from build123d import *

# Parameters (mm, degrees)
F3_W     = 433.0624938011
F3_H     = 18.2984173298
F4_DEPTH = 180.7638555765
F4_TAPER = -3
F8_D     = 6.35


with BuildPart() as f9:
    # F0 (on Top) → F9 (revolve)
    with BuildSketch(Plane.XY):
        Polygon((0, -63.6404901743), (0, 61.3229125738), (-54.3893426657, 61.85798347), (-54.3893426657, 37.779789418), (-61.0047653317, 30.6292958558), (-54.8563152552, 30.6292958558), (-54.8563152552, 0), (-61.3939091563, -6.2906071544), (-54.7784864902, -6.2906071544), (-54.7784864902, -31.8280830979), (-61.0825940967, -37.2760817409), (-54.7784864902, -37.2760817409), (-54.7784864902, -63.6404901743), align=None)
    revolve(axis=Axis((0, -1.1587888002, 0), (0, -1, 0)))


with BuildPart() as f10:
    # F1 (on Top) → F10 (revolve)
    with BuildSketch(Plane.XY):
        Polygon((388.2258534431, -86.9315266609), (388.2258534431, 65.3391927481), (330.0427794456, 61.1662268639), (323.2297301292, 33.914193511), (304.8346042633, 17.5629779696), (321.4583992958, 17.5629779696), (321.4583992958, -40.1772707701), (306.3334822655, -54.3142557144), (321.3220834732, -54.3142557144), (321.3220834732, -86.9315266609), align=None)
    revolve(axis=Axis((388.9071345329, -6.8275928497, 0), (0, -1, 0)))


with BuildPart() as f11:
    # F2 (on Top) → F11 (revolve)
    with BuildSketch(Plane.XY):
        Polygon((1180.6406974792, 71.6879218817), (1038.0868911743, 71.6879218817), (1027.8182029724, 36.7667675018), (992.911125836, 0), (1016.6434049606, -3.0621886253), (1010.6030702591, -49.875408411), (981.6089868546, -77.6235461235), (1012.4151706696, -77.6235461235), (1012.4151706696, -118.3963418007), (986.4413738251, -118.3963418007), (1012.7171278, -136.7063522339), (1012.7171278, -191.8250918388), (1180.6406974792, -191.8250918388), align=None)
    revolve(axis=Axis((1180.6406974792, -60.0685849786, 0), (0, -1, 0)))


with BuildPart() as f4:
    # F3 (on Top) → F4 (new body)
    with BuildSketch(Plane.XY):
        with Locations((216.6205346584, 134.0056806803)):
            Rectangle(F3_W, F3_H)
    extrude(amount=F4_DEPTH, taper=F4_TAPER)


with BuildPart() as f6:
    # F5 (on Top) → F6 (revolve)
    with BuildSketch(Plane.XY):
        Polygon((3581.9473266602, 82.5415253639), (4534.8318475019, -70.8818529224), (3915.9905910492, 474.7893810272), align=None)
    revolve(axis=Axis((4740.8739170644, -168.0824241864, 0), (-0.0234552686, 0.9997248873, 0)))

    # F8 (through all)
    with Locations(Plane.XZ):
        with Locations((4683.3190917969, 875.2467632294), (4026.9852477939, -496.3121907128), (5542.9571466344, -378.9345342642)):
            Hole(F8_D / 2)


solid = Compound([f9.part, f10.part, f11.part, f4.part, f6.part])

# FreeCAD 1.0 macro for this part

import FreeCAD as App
import Part
import Sketcher
from FreeCAD import Vector
Q = App.Units.Quantity

doc = App.newDocument("Part")
body = doc.addObject("PartDesign::Body", "Body")

# Sketch on XY plane
sketch1 = body.newObject("Sketcher::SketchObject", "Sketch")
sketch1.AttachmentSupport = (doc.getObject("XY_Plane"), [""])
sketch1.MapMode = "FlatFace"
sketch1.addGeometry([
    Part.LineSegment(Vector(0, -64, 0), Vector(0, 61, 0)),  # 0
    Part.LineSegment(Vector(0, 61, 0), Vector(-54, 62, 0)),  # 1
    Part.LineSegment(Vector(-54, 62, 0), Vector(-54, 38, 0)),  # 2
    Part.LineSegment(Vector(-54, 38, 0), Vector(-61, 31, 0)),  # 3
    Part.LineSegment(Vector(-61, 31, 0), Vector(-55, 31, 0)),  # 4
    Part.LineSegment(Vector(-55, 31, 0), Vector(-55, 0, 0)),  # 5
    Part.LineSegment(Vector(-55, 0, 0), Vector(-61, -6, 0)),  # 6
    Part.LineSegment(Vector(-61, -6, 0), Vector(-55, -6, 0)),  # 7
    Part.LineSegment(Vector(-55, -6, 0), Vector(-55, -32, 0)),  # 8
    Part.LineSegment(Vector(-55, -32, 0), Vector(-61, -37, 0)),  # 9
    Part.LineSegment(Vector(-61, -37, 0), Vector(-55, -37, 0)),  # 10
    Part.LineSegment(Vector(-55, -37, 0), Vector(-55, -64, 0)),  # 11
    Part.LineSegment(Vector(-55, -64, 0), Vector(0, -64, 0)),  # 12
], False)
sketch1.addConstraint([
    Sketcher.Constraint("Coincident", 0, 2, 1, 1),
    Sketcher.Constraint("Coincident", 1, 2, 2, 1),
    Sketcher.Constraint("Coincident", 2, 2, 3, 1),
    Sketcher.Constraint("Coincident", 3, 2, 4, 1),
    Sketcher.Constraint("Coincident", 4, 2, 5, 1),
    Sketcher.Constraint("Coincident", 5, 2, 6, 1),
    Sketcher.Constraint("Coincident", 6, 2, 7, 1),
    Sketcher.Constraint("Coincident", 7, 2, 8, 1),
    Sketcher.Constraint("Coincident", 8, 2, 9, 1),
    Sketcher.Constraint("Coincident", 9, 2, 10, 1),
    Sketcher.Constraint("Coincident", 10, 2, 11, 1),
    Sketcher.Constraint("Coincident", 11, 2, 12, 1),
    Sketcher.Constraint("Coincident", 12, 2, 0, 1),
    Sketcher.Constraint("Vertical", 0),
    Sketcher.Constraint("Vertical", 2),
    Sketcher.Constraint("Horizontal", 4),
    Sketcher.Constraint("Vertical", 5),
    Sketcher.Constraint("Horizontal", 7),
    Sketcher.Constraint("Vertical", 8),
    Sketcher.Constraint("Horizontal", 10),
    Sketcher.Constraint("Vertical", 11),
    Sketcher.Constraint("Horizontal", 12),
    Sketcher.Constraint("PointOnObject", 0, 2, -2),
    Sketcher.Constraint("PointOnObject", 5, 2, -1),
    Sketcher.Constraint("Vertical", 8, 2, 10, 2),
    Sketcher.Constraint("DistanceX", 4, 1, 4, 2, 6.14845),
    Sketcher.Constraint("DistanceY", 11, 2, 11, 1, 26.364408),
    Sketcher.Constraint("DistanceY", 9, 2, 8, 2, 5.447999),
    Sketcher.Constraint("Distance", 6, 9.072589),
    Sketcher.Constraint("DistanceX", 7, 1, 7, 2, 6.615423),
    Sketcher.Constraint("DistanceX", 10, 1, 10, 2, 6.304108),
    Sketcher.Constraint("DistanceX", 12, 1, 12, 2, 54.778486),
    Sketcher.Constraint("DistanceY", 0, 1, 0, 2, 124.963403),
    Sketcher.Constraint("DistanceY", 2, 2, 2, 1, 24.078194),
    Sketcher.Constraint("DistanceY", 5, 2, 5, 1, 30.629296),
    Sketcher.Constraint("DistanceY", 8, 2, 8, 1, 25.537476),
    Sketcher.Constraint("DistanceY", -1, 1, 2, 2, 37.779789),
    Sketcher.Constraint("DistanceY", 9, 2, -1, 1, 37.276082),
    Sketcher.Constraint("Distance", 1, 54.391975),
])
revolution = body.newObject("PartDesign::Revolution", "Revolution")
revolution.Profile = sketch1
revolution.ReferenceAxis = (sketch1, ["V_Axis"])
revolution.Angle = 360
body2 = doc.addObject("PartDesign::Body", "Body001")

# Sketch on XY plane
sketch2 = body2.newObject("Sketcher::SketchObject", "Sketch001")
sketch2.AttachmentSupport = (doc.getObject("XY_Plane001"), [""])
sketch2.MapMode = "FlatFace"
sketch2.addGeometry([
    Part.LineSegment(Vector(388, -87, 0), Vector(388, 65, 0)),  # 0
    Part.LineSegment(Vector(388, 65, 0), Vector(330, 61, 0)),  # 1
    Part.LineSegment(Vector(330, 61, 0), Vector(323, 34, 0)),  # 2
    Part.LineSegment(Vector(323, 34, 0), Vector(305, 18, 0)),  # 3
    Part.LineSegment(Vector(305, 18, 0), Vector(321, 18, 0)),  # 4
    Part.LineSegment(Vector(321, 18, 0), Vector(321, -40, 0)),  # 5
    Part.LineSegment(Vector(321, -40, 0), Vector(306, -54, 0)),  # 6
    Part.LineSegment(Vector(306, -54, 0), Vector(321, -54, 0)),  # 7
    Part.LineSegment(Vector(321, -54, 0), Vector(321, -87, 0)),  # 8
    Part.LineSegment(Vector(321, -87, 0), Vector(388, -87, 0)),  # 9
], False)
sketch2.addGeometry(Part.LineSegment(Vector(389, 65, 0), Vector(389, -87, 0)), True)  # axis
sketch2.addConstraint([
    Sketcher.Constraint("Coincident", 0, 2, 1, 1),
    Sketcher.Constraint("Coincident", 1, 2, 2, 1),
    Sketcher.Constraint("Coincident", 2, 2, 3, 1),
    Sketcher.Constraint("Coincident", 3, 2, 4, 1),
    Sketcher.Constraint("Coincident", 4, 2, 5, 1),
    Sketcher.Constraint("Coincident", 5, 2, 6, 1),
    Sketcher.Constraint("Coincident", 6, 2, 7, 1),
    Sketcher.Constraint("Coincident", 7, 2, 8, 1),
    Sketcher.Constraint("Coincident", 8, 2, 9, 1),
    Sketcher.Constraint("Coincident", 9, 2, 0, 1),
    Sketcher.Constraint("Vertical", 0),
    Sketcher.Constraint("Horizontal", 4),
    Sketcher.Constraint("Vertical", 5),
    Sketcher.Constraint("Horizontal", 7),
    Sketcher.Constraint("Vertical", 8),
    Sketcher.Constraint("Horizontal", 9),
    Sketcher.Constraint("Vertical", 10),
    Sketcher.Constraint("Horizontal", 0, 2, 10, 1),
    Sketcher.Constraint("Horizontal", 9, 2, 10, 2),
    Sketcher.Constraint("DistanceX", 7, 1, 7, 2, 14.988601),
    Sketcher.Constraint("DistanceX", 9, 1, 9, 2, 66.90377),
    Sketcher.Constraint("DistanceY", 0, 1, 0, 2, 152.270719),
    Sketcher.Constraint("DistanceY", 5, 2, 5, 1, 57.740249),
    Sketcher.Constraint("DistanceY", 8, 2, 8, 1, 32.617271),
    Sketcher.Constraint("DistanceX", -1, 1, 4, 2, 321.458399),
    Sketcher.Constraint("DistanceY", 2, 2, 0, 2, 31.424999),
    Sketcher.Constraint("Distance", 6, 20.703078),
    Sketcher.Constraint("DistanceX", 4, 1, 4, 2, 16.623795),
    Sketcher.Constraint("DistanceX", -1, 1, 1, 2, 330.042779),
    Sketcher.Constraint("DistanceX", -1, 1, 2, 2, 323.22973),
    Sketcher.Constraint("DistanceY", 5, 2, -1, 1, 40.177271),
    Sketcher.Constraint("DistanceY", 3, 2, 1, 2, 43.603249),
    Sketcher.Constraint("DistanceX", 3, 2, 0, 2, 83.391249),
    Sketcher.Constraint("DistanceX", 0, 2, 10, 1, 0.681281),
])
revolution2 = body2.newObject("PartDesign::Revolution", "Revolution001")
revolution2.Profile = sketch2
revolution2.ReferenceAxis = (sketch2, ["Axis0"])
revolution2.Angle = 360
body3 = doc.addObject("PartDesign::Body", "Body002")

# Sketch on XY plane
sketch3 = body3.newObject("Sketcher::SketchObject", "Sketch002")
sketch3.AttachmentSupport = (doc.getObject("XY_Plane002"), [""])
sketch3.MapMode = "FlatFace"
sketch3.addGeometry([
    Part.LineSegment(Vector(1181, 72, 0), Vector(1038, 72, 0)),  # 0
    Part.LineSegment(Vector(1038, 72, 0), Vector(1028, 37, 0)),  # 1
    Part.LineSegment(Vector(1028, 37, 0), Vector(993, 0, 0)),  # 2
    Part.LineSegment(Vector(993, 0, 0), Vector(1017, -3, 0)),  # 3
    Part.LineSegment(Vector(1017, -3, 0), Vector(1011, -50, 0)),  # 4
    Part.LineSegment(Vector(1011, -50, 0), Vector(982, -78, 0)),  # 5
    Part.LineSegment(Vector(982, -78, 0), Vector(1012, -78, 0)),  # 6
    Part.LineSegment(Vector(1012, -78, 0), Vector(1012, -118, 0)),  # 7
    Part.LineSegment(Vector(1012, -118, 0), Vector(986, -118, 0)),  # 8
    Part.LineSegment(Vector(986, -118, 0), Vector(1013, -137, 0)),  # 9
    Part.LineSegment(Vector(1013, -137, 0), Vector(1013, -192, 0)),  # 10
    Part.LineSegment(Vector(1013, -192, 0), Vector(1181, -192, 0)),  # 11
    Part.LineSegment(Vector(1181, -192, 0), Vector(1181, 72, 0)),  # 12
], False)
sketch3.addGeometry(Part.LineSegment(Vector(1181, 72, 0), Vector(1181, -192, 0)), True)  # axis
sketch3.addConstraint([
    Sketcher.Constraint("Coincident", 0, 2, 1, 1),
    Sketcher.Constraint("Coincident", 1, 2, 2, 1),
    Sketcher.Constraint("Coincident", 2, 2, 3, 1),
    Sketcher.Constraint("Coincident", 3, 2, 4, 1),
    Sketcher.Constraint("Coincident", 4, 2, 5, 1),
    Sketcher.Constraint("Coincident", 5, 2, 6, 1),
    Sketcher.Constraint("Coincident", 6, 2, 7, 1),
    Sketcher.Constraint("Coincident", 7, 2, 8, 1),
    Sketcher.Constraint("Coincident", 8, 2, 9, 1),
    Sketcher.Constraint("Coincident", 9, 2, 10, 1),
    Sketcher.Constraint("Coincident", 10, 2, 11, 1),
    Sketcher.Constraint("Coincident", 11, 2, 12, 1),
    Sketcher.Constraint("Coincident", 12, 2, 0, 1),
    Sketcher.Constraint("Horizontal", 0),
    Sketcher.Constraint("Horizontal", 6),
    Sketcher.Constraint("Vertical", 7),
    Sketcher.Constraint("Horizontal", 8),
    Sketcher.Constraint("Vertical", 10),
    Sketcher.Constraint("Horizontal", 11),
    Sketcher.Constraint("Vertical", 12),
    Sketcher.Constraint("Vertical", 13),
    Sketcher.Constraint("Coincident", 13, 1, 12, 2),
    Sketcher.Constraint("PointOnObject", 2, 2, -1),
    Sketcher.Constraint("Perpendicular", 3, 4),
    Sketcher.Constraint("Horizontal", 10, 2, 13, 2),
    Sketcher.Constraint("DistanceX", 11, 1, 11, 2, 167.92357),
    Sketcher.Constraint("DistanceY", 10, 2, 10, 1, 55.11874),
    Sketcher.Constraint("DistanceX", 3, 2, 1, 2, 11.174798),
    Sketcher.Constraint("DistanceX", 4, 2, 6, 2, 1.8121),
    Sketcher.Constraint("Distance", 1, 36.399629),
    Sketcher.Constraint("Distance", 2, 50.698119),
    Sketcher.Constraint("Distance", 3, 23.929022),
    Sketcher.Constraint("Distance", 5, 40.132481),
    Sketcher.Constraint("Distance", 9, 32.02611),
    Sketcher.Constraint("DistanceX", 0, 2, 0, 1, 142.553806),
    Sketcher.Constraint("DistanceX", 6, 1, 6, 2, 30.806184),
    Sketcher.Constraint("DistanceX", 8, 2, 8, 1, 25.973797),
    Sketcher.Constraint("DistanceY", 7, 2, 7, 1, 40.772796),
    Sketcher.Constraint("DistanceY", 12, 1, 12, 2, 263.513014),
    Sketcher.Constraint("DistanceX", -1, 1, 0, 2, 1038.086891),
    Sketcher.Constraint("DistanceY", -1, 1, 0, 2, 71.687922),
    Sketcher.Constraint("DistanceY", 3, 2, -1, 1, 3.062189),
])
revolution3 = body3.newObject("PartDesign::Revolution", "Revolution002")
revolution3.Profile = sketch3
revolution3.ReferenceAxis = (sketch3, ["Axis0"])
revolution3.Angle = 360
body4 = doc.addObject("PartDesign::Body", "Body003")

# Sketch on XY plane
sketch4 = body4.newObject("Sketcher::SketchObject", "Sketch003")
sketch4.AttachmentSupport = (doc.getObject("XY_Plane003"), [""])
sketch4.MapMode = "FlatFace"
sketch4.addGeometry([
    Part.LineSegment(Vector(0, 143, 0), Vector(0, 125, 0)),
    Part.LineSegment(Vector(0, 125, 0), Vector(433, 125, 0)),
    Part.LineSegment(Vector(433, 125, 0), Vector(433, 143, 0)),
    Part.LineSegment(Vector(433, 143, 0), Vector(0, 143, 0)),
], False)
sketch4.addConstraint([
    Sketcher.Constraint("Coincident", 0, 2, 1, 1),
    Sketcher.Constraint("Coincident", 1, 2, 2, 1),
    Sketcher.Constraint("Coincident", 2, 2, 3, 1),
    Sketcher.Constraint("Coincident", 3, 2, 0, 1),
    Sketcher.Constraint("Vertical", 0),
    Sketcher.Constraint("Horizontal", 1),
    Sketcher.Constraint("Vertical", 2),
    Sketcher.Constraint("Horizontal", 3),
    Sketcher.Constraint("DistanceX", 1, 1, 1, 2, 433.062494),
    Sketcher.Constraint("DistanceY", 0, 2, 0, 1, 18.298417),
    Sketcher.Constraint("DistanceX", -1, 1, 1, 2, 433.151782),
    Sketcher.Constraint("DistanceY", -1, 1, 2, 2, 143.154889),
])
pad1 = body4.newObject("PartDesign::Pad", "Pad")
pad1.Profile = sketch4
pad1.Length = 180.763856
pad1.TaperAngle = 3
body5 = doc.addObject("PartDesign::Body", "Body004")

# Sketch on XY plane
sketch5 = body5.newObject("Sketcher::SketchObject", "Sketch004")
sketch5.AttachmentSupport = (doc.getObject("XY_Plane004"), [""])
sketch5.MapMode = "FlatFace"
sketch5.addGeometry([
    Part.LineSegment(Vector(3582, 83, 0), Vector(4535, -71, 0)),
    Part.LineSegment(Vector(4535, -71, 0), Vector(3916, 475, 0)),
    Part.LineSegment(Vector(3916, 475, 0), Vector(3582, 83, 0)),
], False)
sketch5.addGeometry(Part.LineSegment(Vector(4738, -66, 0), Vector(4725, 494, 0)), True)  # axis
sketch5.addConstraint([
    Sketcher.Constraint("Coincident", 0, 2, 1, 1),
    Sketcher.Constraint("Coincident", 1, 2, 2, 1),
    Sketcher.Constraint("Coincident", 2, 2, 0, 1),
    Sketcher.Constraint("Distance", 3, 560.036201),
    Sketcher.Constraint("DistanceX", 2, 2, 3, 1, 1156.533998),
    Sketcher.Constraint("DistanceX", 3, 2, 3, 1, 13.1358),
    Sketcher.Constraint("Distance", 1, 825.058541),
    Sketcher.Constraint("Distance", 2, 515.211881),
    Sketcher.Constraint("DistanceX", -1, 1, 1, 2, 3915.990591),
    Sketcher.Constraint("DistanceY", -1, 1, 1, 2, 474.789381),
    Sketcher.Constraint("DistanceX", 2, 2, 0, 2, 952.884521),
    Sketcher.Constraint("DistanceY", 0, 2, 2, 2, 153.423378),
    Sketcher.Constraint("DistanceY", 3, 1, 2, 2, 148.645411),
])
revolution4 = body5.newObject("PartDesign::Revolution", "Revolution003")
revolution4.Profile = sketch5
revolution4.ReferenceAxis = (sketch5, ["Axis0"])
revolution4.Angle = 360

# Sketch on XZ plane
sketch6 = body5.newObject("Sketcher::SketchObject", "Sketch005")
sketch6.AttachmentSupport = (doc.getObject("XZ_Plane004"), [""])
sketch6.MapMode = "FlatFace"
sketch6.addGeometry([
    Part.Circle(Vector(4683.3, 875.2, 0), Vector(0, 0, 1), 3.2),
    Part.Circle(Vector(4027, -496.3, 0), Vector(0, 0, 1), 3.2),
    Part.Circle(Vector(5543, -378.9, 0), Vector(0, 0, 1), 3.2),
], False)
sketch6.addConstraint([
    Sketcher.Constraint("Equal", 0, 1),
    Sketcher.Constraint("Equal", 1, 2),
    Sketcher.Constraint("Diameter", 0, Q("0.25 in")),
    Sketcher.Constraint("DistanceX", 1, 3, 2, 3, 1515.971899),
    Sketcher.Constraint("DistanceX", -1, 1, 0, 3, 4683.319092),
    Sketcher.Constraint("DistanceY", 1, 3, -1, 1, 496.312191),
    Sketcher.Constraint("DistanceY", -1, 1, 0, 3, 875.246763),
    Sketcher.Constraint("DistanceX", -1, 1, 1, 3, 4026.985248),
    Sketcher.Constraint("DistanceY", 2, 3, -1, 1, 378.934534),
])
doc.recompute()
hole = body5.newObject("PartDesign::Hole", "Hole")
hole.Profile = sketch6
hole.ThreadType = "None"
hole.Diameter = Q("0.25 in")
hole.DepthType = "ThroughAll"

doc.recompute()
